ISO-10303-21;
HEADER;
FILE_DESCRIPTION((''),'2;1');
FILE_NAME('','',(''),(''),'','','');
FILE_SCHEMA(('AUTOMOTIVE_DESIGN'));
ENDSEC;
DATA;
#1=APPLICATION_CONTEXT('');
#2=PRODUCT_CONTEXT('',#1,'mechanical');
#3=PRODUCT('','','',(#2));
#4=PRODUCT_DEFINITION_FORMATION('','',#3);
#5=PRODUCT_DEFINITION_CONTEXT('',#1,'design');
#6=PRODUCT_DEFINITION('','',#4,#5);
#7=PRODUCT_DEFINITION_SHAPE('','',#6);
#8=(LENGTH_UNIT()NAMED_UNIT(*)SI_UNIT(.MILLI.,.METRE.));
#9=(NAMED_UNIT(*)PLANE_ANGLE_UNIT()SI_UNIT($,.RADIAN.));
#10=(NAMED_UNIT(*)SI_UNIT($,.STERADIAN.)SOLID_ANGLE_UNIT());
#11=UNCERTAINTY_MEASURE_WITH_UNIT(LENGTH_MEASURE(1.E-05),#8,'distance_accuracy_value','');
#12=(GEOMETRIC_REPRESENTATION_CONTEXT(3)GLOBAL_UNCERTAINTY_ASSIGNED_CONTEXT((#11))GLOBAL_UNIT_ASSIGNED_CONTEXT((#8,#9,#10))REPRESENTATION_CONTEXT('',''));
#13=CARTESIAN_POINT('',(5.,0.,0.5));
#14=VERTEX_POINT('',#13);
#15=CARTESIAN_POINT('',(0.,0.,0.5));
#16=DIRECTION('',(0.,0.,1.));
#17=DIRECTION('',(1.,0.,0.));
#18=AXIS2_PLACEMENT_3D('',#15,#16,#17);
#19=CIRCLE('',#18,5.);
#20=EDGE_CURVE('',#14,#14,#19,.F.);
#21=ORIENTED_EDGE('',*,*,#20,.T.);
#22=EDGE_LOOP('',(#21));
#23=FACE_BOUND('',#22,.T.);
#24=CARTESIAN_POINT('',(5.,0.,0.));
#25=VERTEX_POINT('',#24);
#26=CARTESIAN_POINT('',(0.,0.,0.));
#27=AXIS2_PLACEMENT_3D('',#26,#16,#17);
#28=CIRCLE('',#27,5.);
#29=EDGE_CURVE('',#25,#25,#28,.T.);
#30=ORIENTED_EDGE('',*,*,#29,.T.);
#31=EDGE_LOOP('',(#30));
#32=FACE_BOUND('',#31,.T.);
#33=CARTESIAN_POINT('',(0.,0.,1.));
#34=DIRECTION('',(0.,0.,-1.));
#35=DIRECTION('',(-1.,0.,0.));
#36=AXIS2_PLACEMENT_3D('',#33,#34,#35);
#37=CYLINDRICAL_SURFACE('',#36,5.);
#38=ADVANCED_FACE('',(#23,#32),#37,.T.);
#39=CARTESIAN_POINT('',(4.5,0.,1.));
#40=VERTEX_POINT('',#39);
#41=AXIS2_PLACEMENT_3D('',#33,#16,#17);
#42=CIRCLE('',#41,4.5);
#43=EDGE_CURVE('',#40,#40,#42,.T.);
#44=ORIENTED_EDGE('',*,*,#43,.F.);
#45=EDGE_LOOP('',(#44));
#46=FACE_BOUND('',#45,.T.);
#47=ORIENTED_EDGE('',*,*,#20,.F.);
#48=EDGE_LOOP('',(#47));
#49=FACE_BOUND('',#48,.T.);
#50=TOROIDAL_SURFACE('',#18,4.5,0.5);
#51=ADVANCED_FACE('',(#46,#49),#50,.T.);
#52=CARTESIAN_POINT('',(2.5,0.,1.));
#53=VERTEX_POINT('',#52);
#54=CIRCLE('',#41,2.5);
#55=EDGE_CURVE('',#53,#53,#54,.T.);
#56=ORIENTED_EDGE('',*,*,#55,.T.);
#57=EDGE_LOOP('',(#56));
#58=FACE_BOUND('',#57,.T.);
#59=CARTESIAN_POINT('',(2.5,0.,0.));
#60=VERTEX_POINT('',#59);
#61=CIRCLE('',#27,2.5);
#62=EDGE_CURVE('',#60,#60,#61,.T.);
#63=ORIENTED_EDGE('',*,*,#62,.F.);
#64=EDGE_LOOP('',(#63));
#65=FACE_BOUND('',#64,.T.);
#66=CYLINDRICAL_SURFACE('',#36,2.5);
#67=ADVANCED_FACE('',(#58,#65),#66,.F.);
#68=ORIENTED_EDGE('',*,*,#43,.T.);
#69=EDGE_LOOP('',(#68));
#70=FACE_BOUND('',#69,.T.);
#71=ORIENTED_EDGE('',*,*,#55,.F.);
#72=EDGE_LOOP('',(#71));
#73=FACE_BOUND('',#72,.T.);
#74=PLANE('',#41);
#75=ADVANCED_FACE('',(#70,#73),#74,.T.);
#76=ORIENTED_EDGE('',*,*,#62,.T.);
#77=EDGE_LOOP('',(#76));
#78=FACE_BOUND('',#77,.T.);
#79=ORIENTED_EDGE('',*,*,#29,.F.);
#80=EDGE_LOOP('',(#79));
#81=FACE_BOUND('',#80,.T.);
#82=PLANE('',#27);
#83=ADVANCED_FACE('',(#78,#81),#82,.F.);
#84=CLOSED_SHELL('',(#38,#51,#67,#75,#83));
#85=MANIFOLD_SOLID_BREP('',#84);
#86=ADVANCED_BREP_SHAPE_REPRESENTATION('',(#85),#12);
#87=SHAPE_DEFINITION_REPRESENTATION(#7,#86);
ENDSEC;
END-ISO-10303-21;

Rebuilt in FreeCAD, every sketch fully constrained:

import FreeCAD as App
import Part
import Sketcher
Q = App.Units.Quantity


def edges_at(feature, points):
    """Names of the edges that pass closest to the given points."""
    edges = feature.Shape.Edges
    near = lambda p: min(range(len(edges)), key=lambda i: edges[i].distToShape(Part.Vertex(*p))[0])
    return sorted({f"Edge{near(p) + 1}" for p in points})

doc = App.newDocument("Part")
body = doc.addObject("PartDesign::Body", "Body")

# Sketch on XY plane
sketch1 = body.newObject("Sketcher::SketchObject", "Sketch")
sketch1.AttachmentSupport = (doc.getObject("XY_Plane"), [""])
sketch1.MapMode = "FlatFace"
sketch1.addGeometry([
    Part.Circle(App.Vector(0, 0, 0), App.Vector(0, 0, 1), 5),
    Part.Circle(App.Vector(0, 0, 0), App.Vector(0, 0, 1), 2.5),
], False)
sketch1.addConstraint([
    Sketcher.Constraint("Coincident", 0, 3, -1, 1),
    Sketcher.Constraint("Coincident", 1, 3, -1, 1),
    Sketcher.Constraint("Diameter", 0, Q("10 mm")),
    Sketcher.Constraint("Diameter", 1, Q("5 mm")),
])
pad1 = body.newObject("PartDesign::Pad", "Pad")
pad1.Profile = sketch1
pad1.Length = 1
doc.recompute()

fillet = body.newObject("PartDesign::Fillet", "Fillet")
fillet.Base = (pad1, edges_at(pad1, [(-5, 0, 1)]))
fillet.Radius = 0.5

doc.recompute()
